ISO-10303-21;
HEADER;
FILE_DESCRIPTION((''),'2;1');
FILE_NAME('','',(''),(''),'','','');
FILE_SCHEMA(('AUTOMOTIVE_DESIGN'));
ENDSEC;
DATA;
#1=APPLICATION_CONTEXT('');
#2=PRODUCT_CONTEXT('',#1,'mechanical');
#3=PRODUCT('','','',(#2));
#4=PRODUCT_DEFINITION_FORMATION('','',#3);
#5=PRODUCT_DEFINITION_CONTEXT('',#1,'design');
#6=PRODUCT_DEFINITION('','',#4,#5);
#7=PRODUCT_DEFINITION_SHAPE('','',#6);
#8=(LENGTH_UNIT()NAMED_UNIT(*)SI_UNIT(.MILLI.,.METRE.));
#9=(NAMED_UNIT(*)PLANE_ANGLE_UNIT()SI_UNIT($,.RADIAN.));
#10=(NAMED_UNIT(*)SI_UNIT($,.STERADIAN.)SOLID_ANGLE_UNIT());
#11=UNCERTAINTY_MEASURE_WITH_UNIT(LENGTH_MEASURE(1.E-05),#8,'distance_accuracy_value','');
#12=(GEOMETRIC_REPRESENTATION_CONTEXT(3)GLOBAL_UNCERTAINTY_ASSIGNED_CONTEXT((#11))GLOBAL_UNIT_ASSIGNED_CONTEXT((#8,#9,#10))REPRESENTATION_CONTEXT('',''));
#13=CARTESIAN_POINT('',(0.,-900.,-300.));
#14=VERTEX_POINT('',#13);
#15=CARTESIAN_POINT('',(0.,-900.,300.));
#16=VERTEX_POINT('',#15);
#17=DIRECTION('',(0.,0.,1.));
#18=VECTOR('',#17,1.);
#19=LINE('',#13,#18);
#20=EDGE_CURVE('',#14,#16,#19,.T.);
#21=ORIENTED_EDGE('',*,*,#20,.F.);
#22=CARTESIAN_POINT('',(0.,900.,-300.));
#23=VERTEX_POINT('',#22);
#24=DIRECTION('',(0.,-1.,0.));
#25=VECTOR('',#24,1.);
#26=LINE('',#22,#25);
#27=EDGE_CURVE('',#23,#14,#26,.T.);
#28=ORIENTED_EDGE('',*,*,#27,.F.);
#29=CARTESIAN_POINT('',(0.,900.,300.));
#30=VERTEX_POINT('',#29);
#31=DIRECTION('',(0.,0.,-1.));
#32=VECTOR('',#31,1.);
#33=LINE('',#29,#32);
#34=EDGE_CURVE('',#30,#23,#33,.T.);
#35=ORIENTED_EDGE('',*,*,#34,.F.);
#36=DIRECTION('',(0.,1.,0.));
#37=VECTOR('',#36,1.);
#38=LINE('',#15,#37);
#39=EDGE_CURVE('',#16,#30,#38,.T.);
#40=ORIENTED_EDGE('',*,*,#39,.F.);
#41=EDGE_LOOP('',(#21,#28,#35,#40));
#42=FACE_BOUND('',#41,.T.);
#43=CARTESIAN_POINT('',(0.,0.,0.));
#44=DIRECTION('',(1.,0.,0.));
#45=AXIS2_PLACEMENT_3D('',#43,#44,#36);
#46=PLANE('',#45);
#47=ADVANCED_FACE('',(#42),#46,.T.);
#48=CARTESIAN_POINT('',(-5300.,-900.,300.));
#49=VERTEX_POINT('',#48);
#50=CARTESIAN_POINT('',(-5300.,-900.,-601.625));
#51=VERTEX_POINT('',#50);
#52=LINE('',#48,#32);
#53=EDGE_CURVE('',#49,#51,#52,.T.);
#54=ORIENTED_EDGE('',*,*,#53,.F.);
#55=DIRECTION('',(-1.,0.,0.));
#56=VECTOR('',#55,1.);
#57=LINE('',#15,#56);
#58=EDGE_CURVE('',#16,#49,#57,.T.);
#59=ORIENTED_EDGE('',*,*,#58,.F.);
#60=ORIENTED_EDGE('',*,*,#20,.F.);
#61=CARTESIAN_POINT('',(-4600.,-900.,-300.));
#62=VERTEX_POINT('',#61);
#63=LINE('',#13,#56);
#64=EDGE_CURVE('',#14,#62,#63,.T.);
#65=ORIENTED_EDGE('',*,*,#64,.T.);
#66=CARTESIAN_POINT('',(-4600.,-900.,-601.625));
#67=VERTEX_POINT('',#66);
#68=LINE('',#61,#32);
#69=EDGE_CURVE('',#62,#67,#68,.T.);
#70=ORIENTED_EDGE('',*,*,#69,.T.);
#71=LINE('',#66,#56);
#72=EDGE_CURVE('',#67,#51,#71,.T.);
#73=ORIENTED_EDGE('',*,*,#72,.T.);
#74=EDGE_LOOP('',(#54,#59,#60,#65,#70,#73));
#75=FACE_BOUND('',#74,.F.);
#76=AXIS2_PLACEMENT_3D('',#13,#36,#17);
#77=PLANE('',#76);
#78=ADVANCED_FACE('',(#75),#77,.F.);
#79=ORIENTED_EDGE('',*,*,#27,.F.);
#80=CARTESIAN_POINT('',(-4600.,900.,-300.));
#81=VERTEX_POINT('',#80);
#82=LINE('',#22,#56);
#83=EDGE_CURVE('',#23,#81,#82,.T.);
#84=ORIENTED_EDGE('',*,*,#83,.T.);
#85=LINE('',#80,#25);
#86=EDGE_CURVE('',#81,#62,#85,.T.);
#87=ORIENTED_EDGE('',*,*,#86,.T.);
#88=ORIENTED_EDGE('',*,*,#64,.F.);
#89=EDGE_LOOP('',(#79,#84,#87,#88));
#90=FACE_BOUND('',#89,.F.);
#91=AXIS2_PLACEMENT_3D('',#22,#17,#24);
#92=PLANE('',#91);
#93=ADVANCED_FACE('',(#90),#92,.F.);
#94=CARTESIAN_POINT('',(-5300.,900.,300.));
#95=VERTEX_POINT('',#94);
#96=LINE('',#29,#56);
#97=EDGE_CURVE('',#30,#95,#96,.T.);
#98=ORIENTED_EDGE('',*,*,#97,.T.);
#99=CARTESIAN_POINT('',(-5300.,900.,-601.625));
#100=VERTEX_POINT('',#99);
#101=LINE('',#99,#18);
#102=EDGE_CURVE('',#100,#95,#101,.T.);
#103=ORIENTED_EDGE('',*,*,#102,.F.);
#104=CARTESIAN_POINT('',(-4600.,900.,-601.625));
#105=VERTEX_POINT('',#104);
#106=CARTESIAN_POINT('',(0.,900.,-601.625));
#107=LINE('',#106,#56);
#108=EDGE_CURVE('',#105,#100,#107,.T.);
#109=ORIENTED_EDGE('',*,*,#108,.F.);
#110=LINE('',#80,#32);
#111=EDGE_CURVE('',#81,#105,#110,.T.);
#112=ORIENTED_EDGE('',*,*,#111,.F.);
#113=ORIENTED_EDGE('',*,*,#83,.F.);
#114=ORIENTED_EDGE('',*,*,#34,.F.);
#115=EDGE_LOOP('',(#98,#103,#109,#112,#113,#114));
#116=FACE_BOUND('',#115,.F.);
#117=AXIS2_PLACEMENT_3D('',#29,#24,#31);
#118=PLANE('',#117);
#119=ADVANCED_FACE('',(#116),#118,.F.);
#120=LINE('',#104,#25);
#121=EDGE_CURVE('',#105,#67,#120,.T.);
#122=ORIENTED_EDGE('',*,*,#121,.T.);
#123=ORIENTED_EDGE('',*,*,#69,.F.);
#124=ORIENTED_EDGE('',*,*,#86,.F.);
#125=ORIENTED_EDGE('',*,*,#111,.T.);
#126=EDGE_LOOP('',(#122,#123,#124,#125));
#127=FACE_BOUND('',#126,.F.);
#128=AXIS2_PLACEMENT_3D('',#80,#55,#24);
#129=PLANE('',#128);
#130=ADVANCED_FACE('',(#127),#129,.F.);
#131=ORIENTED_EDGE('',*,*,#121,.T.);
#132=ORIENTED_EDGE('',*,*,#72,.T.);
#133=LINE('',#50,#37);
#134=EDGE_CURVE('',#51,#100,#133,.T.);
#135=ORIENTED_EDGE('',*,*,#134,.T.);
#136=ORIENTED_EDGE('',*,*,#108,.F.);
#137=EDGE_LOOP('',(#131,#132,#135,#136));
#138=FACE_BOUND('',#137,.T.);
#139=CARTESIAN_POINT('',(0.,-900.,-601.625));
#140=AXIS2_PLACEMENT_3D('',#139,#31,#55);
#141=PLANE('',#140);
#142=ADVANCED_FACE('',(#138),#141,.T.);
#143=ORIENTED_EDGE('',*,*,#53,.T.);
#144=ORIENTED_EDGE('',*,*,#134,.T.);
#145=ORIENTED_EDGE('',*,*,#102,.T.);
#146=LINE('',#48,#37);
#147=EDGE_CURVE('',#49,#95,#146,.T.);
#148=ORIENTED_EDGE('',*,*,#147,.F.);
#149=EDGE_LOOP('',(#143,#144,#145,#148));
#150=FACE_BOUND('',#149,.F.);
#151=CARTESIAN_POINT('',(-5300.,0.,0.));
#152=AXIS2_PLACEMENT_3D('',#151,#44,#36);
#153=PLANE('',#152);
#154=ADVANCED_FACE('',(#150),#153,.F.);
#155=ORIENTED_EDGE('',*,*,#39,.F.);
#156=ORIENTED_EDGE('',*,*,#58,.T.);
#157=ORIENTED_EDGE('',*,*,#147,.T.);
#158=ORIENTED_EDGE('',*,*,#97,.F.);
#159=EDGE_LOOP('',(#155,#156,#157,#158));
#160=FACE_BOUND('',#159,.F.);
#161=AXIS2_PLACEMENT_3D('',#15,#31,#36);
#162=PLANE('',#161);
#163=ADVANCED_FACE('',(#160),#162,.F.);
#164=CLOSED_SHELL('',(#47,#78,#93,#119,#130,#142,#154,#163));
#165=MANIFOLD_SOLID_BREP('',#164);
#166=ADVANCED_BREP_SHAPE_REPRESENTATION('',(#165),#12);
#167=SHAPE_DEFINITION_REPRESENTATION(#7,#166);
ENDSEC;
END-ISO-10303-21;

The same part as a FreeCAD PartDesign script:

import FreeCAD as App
import Part
import Sketcher

V = App.Vector


def add_polygon(sketch, points):
    """Adds a closed chain of lines whose ends are joined by coincident constraints."""
    first, n = sketch.GeometryCount, len(points)
    for a, b in zip(points, points[1:] + points[:1]):
        sketch.addGeometry(Part.LineSegment(App.Vector(*a, 0), App.Vector(*b, 0)), False)
    for i in range(n):
        sketch.addConstraint(Sketcher.Constraint("Coincident", first + i, 2, first + (i + 1) % n, 1))

doc = App.newDocument("Part")
body = doc.addObject("PartDesign::Body", "Body")

# Sketch on YZ plane
sketch1 = body.newObject("Sketcher::SketchObject", "Sketch")
sketch1.AttachmentSupport = (doc.getObject("YZ_Plane"), [""])
sketch1.MapMode = "FlatFace"
add_polygon(sketch1, [(900, 300), (-900, 300), (-900, -300), (900, -300)])  # lines 0-3
sketch1.addConstraint(Sketcher.Constraint("Horizontal", 0))
sketch1.addConstraint(Sketcher.Constraint("Vertical", 1))
sketch1.addConstraint(Sketcher.Constraint("Horizontal", 2))
sketch1.addConstraint(Sketcher.Constraint("Vertical", 3))
sketch1.addConstraint(Sketcher.Constraint("Symmetric", 0, 2, 2, 2, -1, 1))
sketch1.addConstraint(Sketcher.Constraint("DistanceX", 0, 2, 0, 1, 1800.0))
sketch1.addConstraint(Sketcher.Constraint("DistanceY", 1, 2, 1, 1, 600.0))
pad1 = body.newObject("PartDesign::Pad", "Pad")
pad1.Profile = sketch1
pad1.Length = 5300
pad1.Reversed = True

# Sketch on XY plane
sketch2 = body.newObject("Sketcher::SketchObject", "Sketch001")
sketch2.AttachmentSupport = (doc.getObject("XY_Plane"), [""])
sketch2.MapMode = "FlatFace"
sketch2.AttachmentOffset = App.Placement(V(0, 0, -300), App.Rotation())
add_polygon(sketch2, [(-5300, 900), (-4600, 900), (-4600, -900), (-5300, -900)])  # lines 0-3
sketch2.addConstraint(Sketcher.Constraint("Horizontal", 0))
sketch2.addConstraint(Sketcher.Constraint("Vertical", 1))
sketch2.addConstraint(Sketcher.Constraint("Horizontal", 2))
sketch2.addConstraint(Sketcher.Constraint("Vertical", 3))
sketch2.addConstraint(Sketcher.Constraint("DistanceX", 0, 1, 0, 2, 700.0))
sketch2.addConstraint(Sketcher.Constraint("DistanceY", 1, 2, 1, 1, 1800.0))
sketch2.addConstraint(Sketcher.Constraint("DistanceX", 0, 2, -1, 1, 4600.0))
sketch2.addConstraint(Sketcher.Constraint("DistanceY", -1, 1, 0, 2, 900.0))
pad2 = body.newObject("PartDesign::Pad", "Pad001")
pad2.Profile = sketch2
pad2.Length = 301.625
pad2.Reversed = True

doc.recompute()
